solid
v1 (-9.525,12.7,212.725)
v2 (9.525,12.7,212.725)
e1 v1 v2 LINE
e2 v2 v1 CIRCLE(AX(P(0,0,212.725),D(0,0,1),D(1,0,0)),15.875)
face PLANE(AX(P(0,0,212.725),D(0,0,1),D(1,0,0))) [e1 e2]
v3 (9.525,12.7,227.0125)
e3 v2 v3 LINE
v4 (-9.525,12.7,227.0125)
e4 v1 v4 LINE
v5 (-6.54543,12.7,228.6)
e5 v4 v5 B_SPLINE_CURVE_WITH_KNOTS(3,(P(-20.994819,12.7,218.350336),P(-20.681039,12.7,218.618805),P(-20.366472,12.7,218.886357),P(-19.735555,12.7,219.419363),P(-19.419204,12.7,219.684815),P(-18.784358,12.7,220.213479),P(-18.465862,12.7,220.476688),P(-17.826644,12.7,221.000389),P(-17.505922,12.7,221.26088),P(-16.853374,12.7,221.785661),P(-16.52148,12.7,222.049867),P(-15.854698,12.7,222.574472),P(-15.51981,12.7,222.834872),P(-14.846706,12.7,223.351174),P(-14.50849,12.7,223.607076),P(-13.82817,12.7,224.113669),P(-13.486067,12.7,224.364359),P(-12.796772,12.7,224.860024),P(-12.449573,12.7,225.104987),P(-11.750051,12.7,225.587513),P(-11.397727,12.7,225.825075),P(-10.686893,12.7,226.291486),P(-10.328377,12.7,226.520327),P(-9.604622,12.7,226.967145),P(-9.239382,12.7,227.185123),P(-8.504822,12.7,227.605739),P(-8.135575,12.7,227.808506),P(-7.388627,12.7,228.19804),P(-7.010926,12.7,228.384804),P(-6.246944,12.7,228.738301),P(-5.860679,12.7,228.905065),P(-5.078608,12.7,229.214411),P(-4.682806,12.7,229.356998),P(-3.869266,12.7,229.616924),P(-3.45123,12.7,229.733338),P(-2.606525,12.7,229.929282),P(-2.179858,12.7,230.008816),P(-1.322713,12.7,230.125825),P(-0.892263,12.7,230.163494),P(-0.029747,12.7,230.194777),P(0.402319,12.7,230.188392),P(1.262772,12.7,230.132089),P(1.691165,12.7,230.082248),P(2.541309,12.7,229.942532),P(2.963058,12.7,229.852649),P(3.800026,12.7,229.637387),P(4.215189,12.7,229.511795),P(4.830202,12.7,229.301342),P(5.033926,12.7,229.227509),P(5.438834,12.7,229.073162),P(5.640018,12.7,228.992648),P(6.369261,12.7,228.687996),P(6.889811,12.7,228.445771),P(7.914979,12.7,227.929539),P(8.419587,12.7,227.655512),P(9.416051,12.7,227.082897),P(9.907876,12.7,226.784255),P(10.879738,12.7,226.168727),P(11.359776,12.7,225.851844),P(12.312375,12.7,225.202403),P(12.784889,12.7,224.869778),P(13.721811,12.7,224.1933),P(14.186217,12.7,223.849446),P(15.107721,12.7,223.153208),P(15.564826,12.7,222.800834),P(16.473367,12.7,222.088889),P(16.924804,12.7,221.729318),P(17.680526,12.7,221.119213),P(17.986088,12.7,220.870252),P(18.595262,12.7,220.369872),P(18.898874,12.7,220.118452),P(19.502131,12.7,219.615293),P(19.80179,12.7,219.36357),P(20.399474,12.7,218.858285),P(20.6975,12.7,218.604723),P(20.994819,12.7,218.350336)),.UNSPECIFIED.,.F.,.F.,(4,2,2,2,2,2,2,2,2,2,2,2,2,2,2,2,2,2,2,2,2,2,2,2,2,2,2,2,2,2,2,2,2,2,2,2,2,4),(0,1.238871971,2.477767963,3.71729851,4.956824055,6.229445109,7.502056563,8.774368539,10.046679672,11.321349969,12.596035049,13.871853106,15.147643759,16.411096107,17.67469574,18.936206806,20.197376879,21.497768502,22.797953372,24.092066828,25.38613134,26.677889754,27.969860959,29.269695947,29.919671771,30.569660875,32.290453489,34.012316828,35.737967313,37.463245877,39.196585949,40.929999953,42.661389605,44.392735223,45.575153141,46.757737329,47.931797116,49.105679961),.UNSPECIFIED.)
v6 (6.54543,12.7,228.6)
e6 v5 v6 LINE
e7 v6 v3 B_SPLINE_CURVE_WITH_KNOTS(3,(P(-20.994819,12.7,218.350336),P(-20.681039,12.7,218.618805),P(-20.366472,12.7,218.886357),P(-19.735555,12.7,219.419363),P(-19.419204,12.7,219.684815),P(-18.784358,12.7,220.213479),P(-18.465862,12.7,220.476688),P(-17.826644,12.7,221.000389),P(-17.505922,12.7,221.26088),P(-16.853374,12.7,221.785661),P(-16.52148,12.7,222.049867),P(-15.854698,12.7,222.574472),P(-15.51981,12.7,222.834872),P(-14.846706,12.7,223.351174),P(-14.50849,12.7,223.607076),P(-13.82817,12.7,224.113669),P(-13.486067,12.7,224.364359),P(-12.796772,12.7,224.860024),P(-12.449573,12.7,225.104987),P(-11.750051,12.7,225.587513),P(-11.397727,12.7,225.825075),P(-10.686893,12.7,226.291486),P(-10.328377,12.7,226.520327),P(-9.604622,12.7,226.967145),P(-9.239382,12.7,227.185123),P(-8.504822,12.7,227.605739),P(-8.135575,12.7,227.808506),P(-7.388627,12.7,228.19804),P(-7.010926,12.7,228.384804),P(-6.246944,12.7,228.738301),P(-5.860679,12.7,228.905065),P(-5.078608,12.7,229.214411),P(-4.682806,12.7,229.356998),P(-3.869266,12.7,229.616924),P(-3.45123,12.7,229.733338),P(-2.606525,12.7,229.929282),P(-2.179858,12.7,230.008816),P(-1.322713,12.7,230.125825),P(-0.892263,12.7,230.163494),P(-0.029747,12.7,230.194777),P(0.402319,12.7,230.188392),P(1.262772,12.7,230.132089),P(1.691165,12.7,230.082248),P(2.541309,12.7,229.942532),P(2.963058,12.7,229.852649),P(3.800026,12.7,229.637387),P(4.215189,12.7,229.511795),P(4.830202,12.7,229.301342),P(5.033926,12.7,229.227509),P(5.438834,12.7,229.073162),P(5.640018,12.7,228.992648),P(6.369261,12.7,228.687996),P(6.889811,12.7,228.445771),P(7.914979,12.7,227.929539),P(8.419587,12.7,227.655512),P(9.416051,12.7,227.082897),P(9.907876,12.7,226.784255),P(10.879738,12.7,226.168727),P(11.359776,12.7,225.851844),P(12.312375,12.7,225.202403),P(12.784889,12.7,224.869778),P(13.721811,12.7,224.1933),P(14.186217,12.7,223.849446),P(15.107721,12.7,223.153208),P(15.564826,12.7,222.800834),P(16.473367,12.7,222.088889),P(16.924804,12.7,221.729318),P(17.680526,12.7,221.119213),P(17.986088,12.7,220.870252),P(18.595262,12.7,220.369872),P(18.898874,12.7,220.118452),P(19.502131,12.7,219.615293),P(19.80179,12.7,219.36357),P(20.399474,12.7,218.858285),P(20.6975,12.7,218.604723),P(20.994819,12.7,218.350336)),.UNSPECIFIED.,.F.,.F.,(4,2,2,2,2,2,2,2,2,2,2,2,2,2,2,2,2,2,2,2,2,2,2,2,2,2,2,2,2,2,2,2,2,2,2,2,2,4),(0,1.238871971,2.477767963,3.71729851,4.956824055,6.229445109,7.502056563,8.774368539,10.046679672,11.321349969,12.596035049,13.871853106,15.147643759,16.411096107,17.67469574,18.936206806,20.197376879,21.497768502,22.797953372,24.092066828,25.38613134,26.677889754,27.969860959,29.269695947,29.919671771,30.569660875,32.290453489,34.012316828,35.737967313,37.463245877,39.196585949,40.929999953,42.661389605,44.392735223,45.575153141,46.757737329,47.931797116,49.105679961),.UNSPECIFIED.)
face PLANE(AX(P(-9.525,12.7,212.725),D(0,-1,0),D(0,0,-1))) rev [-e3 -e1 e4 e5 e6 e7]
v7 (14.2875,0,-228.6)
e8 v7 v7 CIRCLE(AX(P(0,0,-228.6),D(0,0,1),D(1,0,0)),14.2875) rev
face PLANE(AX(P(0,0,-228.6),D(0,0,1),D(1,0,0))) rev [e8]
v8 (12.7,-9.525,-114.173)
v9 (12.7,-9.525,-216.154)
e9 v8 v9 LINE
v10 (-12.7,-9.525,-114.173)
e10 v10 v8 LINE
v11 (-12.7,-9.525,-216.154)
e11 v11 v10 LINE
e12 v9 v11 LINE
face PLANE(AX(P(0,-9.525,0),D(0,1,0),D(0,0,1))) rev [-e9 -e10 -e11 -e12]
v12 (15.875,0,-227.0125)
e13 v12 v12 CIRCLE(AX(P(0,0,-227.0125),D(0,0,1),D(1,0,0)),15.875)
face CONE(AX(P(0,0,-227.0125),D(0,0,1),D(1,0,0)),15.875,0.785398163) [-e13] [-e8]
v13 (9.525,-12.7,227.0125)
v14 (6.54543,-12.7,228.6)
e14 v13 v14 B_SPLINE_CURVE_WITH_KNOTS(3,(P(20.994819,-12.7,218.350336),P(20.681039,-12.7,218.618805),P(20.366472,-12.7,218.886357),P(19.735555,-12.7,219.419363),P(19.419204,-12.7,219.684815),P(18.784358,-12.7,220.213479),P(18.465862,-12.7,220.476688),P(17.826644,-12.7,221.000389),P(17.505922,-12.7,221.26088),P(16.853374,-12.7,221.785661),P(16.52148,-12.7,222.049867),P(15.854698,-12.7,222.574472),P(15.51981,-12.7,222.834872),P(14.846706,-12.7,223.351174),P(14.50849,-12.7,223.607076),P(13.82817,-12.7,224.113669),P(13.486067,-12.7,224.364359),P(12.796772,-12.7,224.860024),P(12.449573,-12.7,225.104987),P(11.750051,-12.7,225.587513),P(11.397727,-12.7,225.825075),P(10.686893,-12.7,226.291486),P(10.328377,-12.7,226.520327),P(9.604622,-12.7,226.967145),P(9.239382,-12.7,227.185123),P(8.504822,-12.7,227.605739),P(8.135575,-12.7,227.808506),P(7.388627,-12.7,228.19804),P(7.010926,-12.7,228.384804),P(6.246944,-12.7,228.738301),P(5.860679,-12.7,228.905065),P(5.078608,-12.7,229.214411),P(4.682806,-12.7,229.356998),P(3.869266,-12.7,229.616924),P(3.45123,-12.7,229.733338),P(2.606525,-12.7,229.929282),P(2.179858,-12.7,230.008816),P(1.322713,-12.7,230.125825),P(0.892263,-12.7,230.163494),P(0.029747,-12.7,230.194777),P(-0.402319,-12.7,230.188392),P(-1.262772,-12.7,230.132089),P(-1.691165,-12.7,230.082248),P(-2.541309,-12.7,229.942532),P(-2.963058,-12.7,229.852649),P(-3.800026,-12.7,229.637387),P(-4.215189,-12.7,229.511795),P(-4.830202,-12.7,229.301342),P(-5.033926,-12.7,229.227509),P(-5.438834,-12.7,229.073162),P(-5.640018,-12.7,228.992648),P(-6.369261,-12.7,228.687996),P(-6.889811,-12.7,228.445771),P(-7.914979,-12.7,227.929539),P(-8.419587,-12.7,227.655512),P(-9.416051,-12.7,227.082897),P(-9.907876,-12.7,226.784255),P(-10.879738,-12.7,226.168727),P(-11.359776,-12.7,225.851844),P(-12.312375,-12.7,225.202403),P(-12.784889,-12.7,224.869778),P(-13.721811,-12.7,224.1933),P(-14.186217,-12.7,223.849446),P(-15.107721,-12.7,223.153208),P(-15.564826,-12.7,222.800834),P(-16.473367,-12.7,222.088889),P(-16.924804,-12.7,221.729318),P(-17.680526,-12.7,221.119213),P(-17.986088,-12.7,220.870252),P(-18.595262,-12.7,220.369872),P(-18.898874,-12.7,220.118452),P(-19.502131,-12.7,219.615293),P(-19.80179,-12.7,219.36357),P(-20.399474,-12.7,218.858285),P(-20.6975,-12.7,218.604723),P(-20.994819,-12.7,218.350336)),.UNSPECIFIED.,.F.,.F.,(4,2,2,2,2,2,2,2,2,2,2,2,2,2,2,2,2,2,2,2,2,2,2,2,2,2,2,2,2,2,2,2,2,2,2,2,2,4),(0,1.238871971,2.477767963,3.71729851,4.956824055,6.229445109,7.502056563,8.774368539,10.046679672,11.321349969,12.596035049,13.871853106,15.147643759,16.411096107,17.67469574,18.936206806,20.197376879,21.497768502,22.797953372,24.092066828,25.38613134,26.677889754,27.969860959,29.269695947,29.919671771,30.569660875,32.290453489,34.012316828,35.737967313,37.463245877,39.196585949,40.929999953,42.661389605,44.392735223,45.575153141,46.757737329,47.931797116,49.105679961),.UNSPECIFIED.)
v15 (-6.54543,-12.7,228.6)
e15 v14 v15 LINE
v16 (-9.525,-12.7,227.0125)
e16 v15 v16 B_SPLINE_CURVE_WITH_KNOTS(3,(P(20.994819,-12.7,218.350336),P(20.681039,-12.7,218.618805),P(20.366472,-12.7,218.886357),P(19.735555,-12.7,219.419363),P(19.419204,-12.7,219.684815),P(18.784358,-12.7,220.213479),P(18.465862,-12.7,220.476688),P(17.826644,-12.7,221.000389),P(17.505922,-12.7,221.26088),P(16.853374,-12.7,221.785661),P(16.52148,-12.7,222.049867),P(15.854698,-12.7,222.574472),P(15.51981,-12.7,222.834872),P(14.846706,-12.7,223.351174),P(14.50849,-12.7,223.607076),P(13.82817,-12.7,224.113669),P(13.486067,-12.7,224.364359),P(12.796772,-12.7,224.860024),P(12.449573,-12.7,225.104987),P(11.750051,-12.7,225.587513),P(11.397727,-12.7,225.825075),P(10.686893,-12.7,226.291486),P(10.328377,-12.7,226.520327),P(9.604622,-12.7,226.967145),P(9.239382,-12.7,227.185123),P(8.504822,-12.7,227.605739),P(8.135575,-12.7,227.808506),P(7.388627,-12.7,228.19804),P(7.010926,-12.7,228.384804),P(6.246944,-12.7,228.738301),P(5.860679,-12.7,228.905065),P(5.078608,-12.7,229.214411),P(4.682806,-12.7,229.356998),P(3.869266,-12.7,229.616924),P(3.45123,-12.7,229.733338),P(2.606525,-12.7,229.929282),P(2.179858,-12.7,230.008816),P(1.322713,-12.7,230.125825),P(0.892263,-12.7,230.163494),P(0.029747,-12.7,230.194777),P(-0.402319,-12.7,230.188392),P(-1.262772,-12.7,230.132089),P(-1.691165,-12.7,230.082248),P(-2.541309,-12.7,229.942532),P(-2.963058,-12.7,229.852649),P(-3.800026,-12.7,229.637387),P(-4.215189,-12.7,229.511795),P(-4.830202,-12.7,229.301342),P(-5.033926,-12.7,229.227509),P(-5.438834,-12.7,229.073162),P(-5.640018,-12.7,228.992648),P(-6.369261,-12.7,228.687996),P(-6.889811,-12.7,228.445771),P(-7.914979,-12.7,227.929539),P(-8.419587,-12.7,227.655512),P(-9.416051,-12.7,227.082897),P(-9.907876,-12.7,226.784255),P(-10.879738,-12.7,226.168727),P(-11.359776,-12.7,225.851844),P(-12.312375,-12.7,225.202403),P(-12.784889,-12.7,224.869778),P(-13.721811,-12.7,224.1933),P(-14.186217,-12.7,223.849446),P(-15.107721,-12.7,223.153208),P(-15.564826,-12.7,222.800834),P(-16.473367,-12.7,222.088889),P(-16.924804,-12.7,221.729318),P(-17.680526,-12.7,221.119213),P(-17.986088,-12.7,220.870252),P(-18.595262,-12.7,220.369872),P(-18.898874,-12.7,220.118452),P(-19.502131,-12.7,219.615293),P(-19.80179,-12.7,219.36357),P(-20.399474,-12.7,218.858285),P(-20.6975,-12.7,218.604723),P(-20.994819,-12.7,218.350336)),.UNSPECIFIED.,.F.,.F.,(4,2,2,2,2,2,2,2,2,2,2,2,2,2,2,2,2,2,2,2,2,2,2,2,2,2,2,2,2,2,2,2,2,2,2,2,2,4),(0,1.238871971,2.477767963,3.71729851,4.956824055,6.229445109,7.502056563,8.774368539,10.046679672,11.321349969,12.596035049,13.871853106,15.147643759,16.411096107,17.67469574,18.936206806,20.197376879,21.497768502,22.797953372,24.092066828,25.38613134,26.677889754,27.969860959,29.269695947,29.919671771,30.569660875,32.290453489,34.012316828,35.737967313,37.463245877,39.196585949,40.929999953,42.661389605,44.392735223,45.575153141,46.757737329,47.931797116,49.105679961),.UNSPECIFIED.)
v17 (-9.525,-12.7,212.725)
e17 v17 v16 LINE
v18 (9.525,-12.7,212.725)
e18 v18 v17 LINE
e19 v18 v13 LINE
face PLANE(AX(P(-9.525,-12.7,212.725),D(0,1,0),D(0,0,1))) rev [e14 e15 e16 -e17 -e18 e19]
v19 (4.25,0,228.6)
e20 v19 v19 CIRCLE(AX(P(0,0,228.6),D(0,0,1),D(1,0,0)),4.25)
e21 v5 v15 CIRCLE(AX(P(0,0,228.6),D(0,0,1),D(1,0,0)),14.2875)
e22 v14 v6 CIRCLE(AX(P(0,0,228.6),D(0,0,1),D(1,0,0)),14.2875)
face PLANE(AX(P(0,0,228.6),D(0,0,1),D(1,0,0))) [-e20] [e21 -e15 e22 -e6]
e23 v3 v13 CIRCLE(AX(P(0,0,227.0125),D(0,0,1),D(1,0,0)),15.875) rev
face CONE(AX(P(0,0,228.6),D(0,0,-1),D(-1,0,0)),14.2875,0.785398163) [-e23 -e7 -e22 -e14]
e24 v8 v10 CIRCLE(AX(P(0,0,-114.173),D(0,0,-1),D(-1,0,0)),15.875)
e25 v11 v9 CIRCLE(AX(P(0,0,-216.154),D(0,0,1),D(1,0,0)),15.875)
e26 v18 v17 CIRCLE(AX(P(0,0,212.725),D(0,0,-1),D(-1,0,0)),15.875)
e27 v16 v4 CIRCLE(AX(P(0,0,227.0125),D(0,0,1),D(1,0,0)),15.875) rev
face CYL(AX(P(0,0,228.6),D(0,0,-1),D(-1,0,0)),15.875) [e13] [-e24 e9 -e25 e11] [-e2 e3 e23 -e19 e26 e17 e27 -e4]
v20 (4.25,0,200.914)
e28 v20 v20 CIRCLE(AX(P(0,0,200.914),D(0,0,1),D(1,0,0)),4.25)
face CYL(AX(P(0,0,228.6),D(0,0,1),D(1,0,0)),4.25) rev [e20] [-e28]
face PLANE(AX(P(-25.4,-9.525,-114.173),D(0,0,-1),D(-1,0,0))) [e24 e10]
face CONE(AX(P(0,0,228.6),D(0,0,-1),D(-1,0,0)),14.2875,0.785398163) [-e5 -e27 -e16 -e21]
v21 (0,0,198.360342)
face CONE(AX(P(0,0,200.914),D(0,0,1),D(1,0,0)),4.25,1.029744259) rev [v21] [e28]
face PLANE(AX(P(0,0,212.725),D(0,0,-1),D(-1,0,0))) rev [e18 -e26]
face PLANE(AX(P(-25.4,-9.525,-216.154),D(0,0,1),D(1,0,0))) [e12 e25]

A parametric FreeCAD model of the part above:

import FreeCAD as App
import Part
import Sketcher
Q = App.Units.Quantity


def edges_at(feature, points):
    """Names of the edges that pass closest to the given points."""
    edges = feature.Shape.Edges
    near = lambda p: min(range(len(edges)), key=lambda i: edges[i].distToShape(Part.Vertex(*p))[0])
    return sorted({f"Edge{near(p) + 1}" for p in points})

doc = App.newDocument("Part")
body = doc.addObject("PartDesign::Body", "Body")

# Sketch on XY plane
sketch1 = body.newObject("Sketcher::SketchObject", "Sketch")
sketch1.AttachmentSupport = (doc.getObject("XY_Plane"), [""])
sketch1.MapMode = "FlatFace"
sketch1.addGeometry(Part.Circle(App.Vector(0, 0, 0), App.Vector(0, 0, 1), 16), False)
sketch1.addConstraint([
    Sketcher.Constraint("Coincident", 0, 3, -1, 1),
    Sketcher.Constraint("Diameter", 0, Q("1.25 in")),
])
pad1 = body.newObject("PartDesign::Pad", "Pad")
pad1.Profile = sketch1
pad1.Length = Q("18 in")
pad1.Midplane = True

# Sketch on XZ plane
sketch2 = body.newObject("Sketcher::SketchObject", "Sketch001")
sketch2.AttachmentSupport = (doc.getObject("XZ_Plane"), [""])
sketch2.MapMode = "FlatFace"
sketch2.AttachmentOffset = App.Placement(App.Vector(0, 0, 0.75 * 25.4), App.Rotation())
sketch2.addGeometry([
    Part.LineSegment(App.Vector(-25, -216, 0), App.Vector(-25, -114, 0)),
    Part.LineSegment(App.Vector(-25, -114, 0), App.Vector(25, -114, 0)),
    Part.LineSegment(App.Vector(25, -114, 0), App.Vector(25, -216, 0)),
    Part.LineSegment(App.Vector(25, -216, 0), App.Vector(-25, -216, 0)),
], False)
sketch2.addConstraint([
    Sketcher.Constraint("Coincident", 0, 2, 1, 1),
    Sketcher.Constraint("Coincident", 1, 2, 2, 1),
    Sketcher.Constraint("Coincident", 2, 2, 3, 1),
    Sketcher.Constraint("Coincident", 3, 2, 0, 1),
    Sketcher.Constraint("Vertical", 0),
    Sketcher.Constraint("Horizontal", 1),
    Sketcher.Constraint("Vertical", 2),
    Sketcher.Constraint("Horizontal", 3),
    Sketcher.Constraint("DistanceX", 1, 1, 1, 2, Q("2 in")),
    Sketcher.Constraint("DistanceX", 0, 2, -1, 1, Q("1 in")),
    Sketcher.Constraint("DistanceY", 0, 1, 0, 2, Q("4.015 in")),
    Sketcher.Constraint("DistanceY", 2, 2, -1, 1, Q("8.51 in")),
])
pocket1 = body.newObject("PartDesign::Pocket", "Pocket")
pocket1.Profile = sketch2
pocket1.Length = Q("0.375 in")
doc.recompute()

chamfer = body.newObject("PartDesign::Chamfer", "Chamfer")
chamfer.Base = (pocket1, edges_at(pocket1, [(-15.875, 0, -228.6), (-15.875, 0, 228.6)]))
chamfer.Size = Q("0.0625 in")

# Sketch on XY plane
sketch3 = body.newObject("Sketcher::SketchObject", "Sketch002")
sketch3.AttachmentSupport = (doc.getObject("XY_Plane"), [""])
sketch3.MapMode = "FlatFace"
sketch3.AttachmentOffset = App.Placement(App.Vector(0, 0, 9 * 25.4), App.Rotation())
sketch3.addGeometry([
    Part.LineSegment(App.Vector(-10, 23, 0), App.Vector(-10, 13, 0)),  # 0
    Part.LineSegment(App.Vector(-10, 13, 0), App.Vector(10, 13, 0)),  # 1
    Part.LineSegment(App.Vector(10, 13, 0), App.Vector(10, 23, 0)),  # 2
    Part.LineSegment(App.Vector(10, 23, 0), App.Vector(-10, 23, 0)),  # 3
    Part.LineSegment(App.Vector(-10, -13, 0), App.Vector(-10, -21, 0)),  # 4
    Part.LineSegment(App.Vector(-10, -21, 0), App.Vector(10, -21, 0)),  # 5
    Part.LineSegment(App.Vector(10, -21, 0), App.Vector(10, -13, 0)),  # 6
    Part.LineSegment(App.Vector(10, -13, 0), App.Vector(-10, -13, 0)),  # 7
], False)
sketch3.addConstraint([
    Sketcher.Constraint("Coincident", 0, 2, 1, 1),
    Sketcher.Constraint("Coincident", 1, 2, 2, 1),
    Sketcher.Constraint("Coincident", 2, 2, 3, 1),
    Sketcher.Constraint("Coincident", 3, 2, 0, 1),
    Sketcher.Constraint("Coincident", 4, 2, 5, 1),
    Sketcher.Constraint("Coincident", 5, 2, 6, 1),
    Sketcher.Constraint("Coincident", 6, 2, 7, 1),
    Sketcher.Constraint("Coincident", 7, 2, 4, 1),
    Sketcher.Constraint("Vertical", 0),
    Sketcher.Constraint("Horizontal", 1),
    Sketcher.Constraint("Vertical", 2),
    Sketcher.Constraint("Horizontal", 3),
    Sketcher.Constraint("Vertical", 4),
    Sketcher.Constraint("Horizontal", 5),
    Sketcher.Constraint("Vertical", 6),
    Sketcher.Constraint("Horizontal", 7),
    Sketcher.Constraint("Symmetric", 0, 2, 6, 2, -1, 1),
    Sketcher.Constraint("Vertical", 3, 2, 4, 2),
    Sketcher.Constraint("Vertical", 2, 2, 5, 2),
    Sketcher.Constraint("DistanceY", 6, 2, 1, 2, Q("1 in")),
    Sketcher.Constraint("DistanceX", 1, 1, 1, 2, Q("0.75 in")),
    Sketcher.Constraint("DistanceY", 0, 2, 0, 1, Q("10.048589 mm")),
    Sketcher.Constraint("DistanceY", 4, 2, 4, 1, Q("8.582335 mm")),
])
pocket2 = body.newObject("PartDesign::Pocket", "Pocket001")
pocket2.Profile = sketch3
pocket2.Length = Q("0.625 in")

# Sketch on XY plane
sketch4 = body.newObject("Sketcher::SketchObject", "Sketch003")
sketch4.AttachmentSupport = (doc.getObject("XY_Plane"), [""])
sketch4.MapMode = "FlatFace"
sketch4.AttachmentOffset = App.Placement(App.Vector(0, 0, 9 * 25.4), App.Rotation())
sketch4.addGeometry(Part.Circle(App.Vector(0, 0, 0), App.Vector(0, 0, 1), 4.2), False)
sketch4.addConstraint([
    Sketcher.Constraint("Coincident", 0, 3, -1, 1),
    Sketcher.Constraint("Diameter", 0, Q("8.5 mm")),
])
doc.recompute()
hole = body.newObject("PartDesign::Hole", "Hole")
hole.Profile = sketch4
hole.ThreadType = "None"
hole.Diameter = 8.5
hole.DepthType = "Dimension"
hole.Depth = Q("1.09 in")
hole.DrillPoint = "Angled"
hole.DrillPointAngle = 118

doc.recompute()
